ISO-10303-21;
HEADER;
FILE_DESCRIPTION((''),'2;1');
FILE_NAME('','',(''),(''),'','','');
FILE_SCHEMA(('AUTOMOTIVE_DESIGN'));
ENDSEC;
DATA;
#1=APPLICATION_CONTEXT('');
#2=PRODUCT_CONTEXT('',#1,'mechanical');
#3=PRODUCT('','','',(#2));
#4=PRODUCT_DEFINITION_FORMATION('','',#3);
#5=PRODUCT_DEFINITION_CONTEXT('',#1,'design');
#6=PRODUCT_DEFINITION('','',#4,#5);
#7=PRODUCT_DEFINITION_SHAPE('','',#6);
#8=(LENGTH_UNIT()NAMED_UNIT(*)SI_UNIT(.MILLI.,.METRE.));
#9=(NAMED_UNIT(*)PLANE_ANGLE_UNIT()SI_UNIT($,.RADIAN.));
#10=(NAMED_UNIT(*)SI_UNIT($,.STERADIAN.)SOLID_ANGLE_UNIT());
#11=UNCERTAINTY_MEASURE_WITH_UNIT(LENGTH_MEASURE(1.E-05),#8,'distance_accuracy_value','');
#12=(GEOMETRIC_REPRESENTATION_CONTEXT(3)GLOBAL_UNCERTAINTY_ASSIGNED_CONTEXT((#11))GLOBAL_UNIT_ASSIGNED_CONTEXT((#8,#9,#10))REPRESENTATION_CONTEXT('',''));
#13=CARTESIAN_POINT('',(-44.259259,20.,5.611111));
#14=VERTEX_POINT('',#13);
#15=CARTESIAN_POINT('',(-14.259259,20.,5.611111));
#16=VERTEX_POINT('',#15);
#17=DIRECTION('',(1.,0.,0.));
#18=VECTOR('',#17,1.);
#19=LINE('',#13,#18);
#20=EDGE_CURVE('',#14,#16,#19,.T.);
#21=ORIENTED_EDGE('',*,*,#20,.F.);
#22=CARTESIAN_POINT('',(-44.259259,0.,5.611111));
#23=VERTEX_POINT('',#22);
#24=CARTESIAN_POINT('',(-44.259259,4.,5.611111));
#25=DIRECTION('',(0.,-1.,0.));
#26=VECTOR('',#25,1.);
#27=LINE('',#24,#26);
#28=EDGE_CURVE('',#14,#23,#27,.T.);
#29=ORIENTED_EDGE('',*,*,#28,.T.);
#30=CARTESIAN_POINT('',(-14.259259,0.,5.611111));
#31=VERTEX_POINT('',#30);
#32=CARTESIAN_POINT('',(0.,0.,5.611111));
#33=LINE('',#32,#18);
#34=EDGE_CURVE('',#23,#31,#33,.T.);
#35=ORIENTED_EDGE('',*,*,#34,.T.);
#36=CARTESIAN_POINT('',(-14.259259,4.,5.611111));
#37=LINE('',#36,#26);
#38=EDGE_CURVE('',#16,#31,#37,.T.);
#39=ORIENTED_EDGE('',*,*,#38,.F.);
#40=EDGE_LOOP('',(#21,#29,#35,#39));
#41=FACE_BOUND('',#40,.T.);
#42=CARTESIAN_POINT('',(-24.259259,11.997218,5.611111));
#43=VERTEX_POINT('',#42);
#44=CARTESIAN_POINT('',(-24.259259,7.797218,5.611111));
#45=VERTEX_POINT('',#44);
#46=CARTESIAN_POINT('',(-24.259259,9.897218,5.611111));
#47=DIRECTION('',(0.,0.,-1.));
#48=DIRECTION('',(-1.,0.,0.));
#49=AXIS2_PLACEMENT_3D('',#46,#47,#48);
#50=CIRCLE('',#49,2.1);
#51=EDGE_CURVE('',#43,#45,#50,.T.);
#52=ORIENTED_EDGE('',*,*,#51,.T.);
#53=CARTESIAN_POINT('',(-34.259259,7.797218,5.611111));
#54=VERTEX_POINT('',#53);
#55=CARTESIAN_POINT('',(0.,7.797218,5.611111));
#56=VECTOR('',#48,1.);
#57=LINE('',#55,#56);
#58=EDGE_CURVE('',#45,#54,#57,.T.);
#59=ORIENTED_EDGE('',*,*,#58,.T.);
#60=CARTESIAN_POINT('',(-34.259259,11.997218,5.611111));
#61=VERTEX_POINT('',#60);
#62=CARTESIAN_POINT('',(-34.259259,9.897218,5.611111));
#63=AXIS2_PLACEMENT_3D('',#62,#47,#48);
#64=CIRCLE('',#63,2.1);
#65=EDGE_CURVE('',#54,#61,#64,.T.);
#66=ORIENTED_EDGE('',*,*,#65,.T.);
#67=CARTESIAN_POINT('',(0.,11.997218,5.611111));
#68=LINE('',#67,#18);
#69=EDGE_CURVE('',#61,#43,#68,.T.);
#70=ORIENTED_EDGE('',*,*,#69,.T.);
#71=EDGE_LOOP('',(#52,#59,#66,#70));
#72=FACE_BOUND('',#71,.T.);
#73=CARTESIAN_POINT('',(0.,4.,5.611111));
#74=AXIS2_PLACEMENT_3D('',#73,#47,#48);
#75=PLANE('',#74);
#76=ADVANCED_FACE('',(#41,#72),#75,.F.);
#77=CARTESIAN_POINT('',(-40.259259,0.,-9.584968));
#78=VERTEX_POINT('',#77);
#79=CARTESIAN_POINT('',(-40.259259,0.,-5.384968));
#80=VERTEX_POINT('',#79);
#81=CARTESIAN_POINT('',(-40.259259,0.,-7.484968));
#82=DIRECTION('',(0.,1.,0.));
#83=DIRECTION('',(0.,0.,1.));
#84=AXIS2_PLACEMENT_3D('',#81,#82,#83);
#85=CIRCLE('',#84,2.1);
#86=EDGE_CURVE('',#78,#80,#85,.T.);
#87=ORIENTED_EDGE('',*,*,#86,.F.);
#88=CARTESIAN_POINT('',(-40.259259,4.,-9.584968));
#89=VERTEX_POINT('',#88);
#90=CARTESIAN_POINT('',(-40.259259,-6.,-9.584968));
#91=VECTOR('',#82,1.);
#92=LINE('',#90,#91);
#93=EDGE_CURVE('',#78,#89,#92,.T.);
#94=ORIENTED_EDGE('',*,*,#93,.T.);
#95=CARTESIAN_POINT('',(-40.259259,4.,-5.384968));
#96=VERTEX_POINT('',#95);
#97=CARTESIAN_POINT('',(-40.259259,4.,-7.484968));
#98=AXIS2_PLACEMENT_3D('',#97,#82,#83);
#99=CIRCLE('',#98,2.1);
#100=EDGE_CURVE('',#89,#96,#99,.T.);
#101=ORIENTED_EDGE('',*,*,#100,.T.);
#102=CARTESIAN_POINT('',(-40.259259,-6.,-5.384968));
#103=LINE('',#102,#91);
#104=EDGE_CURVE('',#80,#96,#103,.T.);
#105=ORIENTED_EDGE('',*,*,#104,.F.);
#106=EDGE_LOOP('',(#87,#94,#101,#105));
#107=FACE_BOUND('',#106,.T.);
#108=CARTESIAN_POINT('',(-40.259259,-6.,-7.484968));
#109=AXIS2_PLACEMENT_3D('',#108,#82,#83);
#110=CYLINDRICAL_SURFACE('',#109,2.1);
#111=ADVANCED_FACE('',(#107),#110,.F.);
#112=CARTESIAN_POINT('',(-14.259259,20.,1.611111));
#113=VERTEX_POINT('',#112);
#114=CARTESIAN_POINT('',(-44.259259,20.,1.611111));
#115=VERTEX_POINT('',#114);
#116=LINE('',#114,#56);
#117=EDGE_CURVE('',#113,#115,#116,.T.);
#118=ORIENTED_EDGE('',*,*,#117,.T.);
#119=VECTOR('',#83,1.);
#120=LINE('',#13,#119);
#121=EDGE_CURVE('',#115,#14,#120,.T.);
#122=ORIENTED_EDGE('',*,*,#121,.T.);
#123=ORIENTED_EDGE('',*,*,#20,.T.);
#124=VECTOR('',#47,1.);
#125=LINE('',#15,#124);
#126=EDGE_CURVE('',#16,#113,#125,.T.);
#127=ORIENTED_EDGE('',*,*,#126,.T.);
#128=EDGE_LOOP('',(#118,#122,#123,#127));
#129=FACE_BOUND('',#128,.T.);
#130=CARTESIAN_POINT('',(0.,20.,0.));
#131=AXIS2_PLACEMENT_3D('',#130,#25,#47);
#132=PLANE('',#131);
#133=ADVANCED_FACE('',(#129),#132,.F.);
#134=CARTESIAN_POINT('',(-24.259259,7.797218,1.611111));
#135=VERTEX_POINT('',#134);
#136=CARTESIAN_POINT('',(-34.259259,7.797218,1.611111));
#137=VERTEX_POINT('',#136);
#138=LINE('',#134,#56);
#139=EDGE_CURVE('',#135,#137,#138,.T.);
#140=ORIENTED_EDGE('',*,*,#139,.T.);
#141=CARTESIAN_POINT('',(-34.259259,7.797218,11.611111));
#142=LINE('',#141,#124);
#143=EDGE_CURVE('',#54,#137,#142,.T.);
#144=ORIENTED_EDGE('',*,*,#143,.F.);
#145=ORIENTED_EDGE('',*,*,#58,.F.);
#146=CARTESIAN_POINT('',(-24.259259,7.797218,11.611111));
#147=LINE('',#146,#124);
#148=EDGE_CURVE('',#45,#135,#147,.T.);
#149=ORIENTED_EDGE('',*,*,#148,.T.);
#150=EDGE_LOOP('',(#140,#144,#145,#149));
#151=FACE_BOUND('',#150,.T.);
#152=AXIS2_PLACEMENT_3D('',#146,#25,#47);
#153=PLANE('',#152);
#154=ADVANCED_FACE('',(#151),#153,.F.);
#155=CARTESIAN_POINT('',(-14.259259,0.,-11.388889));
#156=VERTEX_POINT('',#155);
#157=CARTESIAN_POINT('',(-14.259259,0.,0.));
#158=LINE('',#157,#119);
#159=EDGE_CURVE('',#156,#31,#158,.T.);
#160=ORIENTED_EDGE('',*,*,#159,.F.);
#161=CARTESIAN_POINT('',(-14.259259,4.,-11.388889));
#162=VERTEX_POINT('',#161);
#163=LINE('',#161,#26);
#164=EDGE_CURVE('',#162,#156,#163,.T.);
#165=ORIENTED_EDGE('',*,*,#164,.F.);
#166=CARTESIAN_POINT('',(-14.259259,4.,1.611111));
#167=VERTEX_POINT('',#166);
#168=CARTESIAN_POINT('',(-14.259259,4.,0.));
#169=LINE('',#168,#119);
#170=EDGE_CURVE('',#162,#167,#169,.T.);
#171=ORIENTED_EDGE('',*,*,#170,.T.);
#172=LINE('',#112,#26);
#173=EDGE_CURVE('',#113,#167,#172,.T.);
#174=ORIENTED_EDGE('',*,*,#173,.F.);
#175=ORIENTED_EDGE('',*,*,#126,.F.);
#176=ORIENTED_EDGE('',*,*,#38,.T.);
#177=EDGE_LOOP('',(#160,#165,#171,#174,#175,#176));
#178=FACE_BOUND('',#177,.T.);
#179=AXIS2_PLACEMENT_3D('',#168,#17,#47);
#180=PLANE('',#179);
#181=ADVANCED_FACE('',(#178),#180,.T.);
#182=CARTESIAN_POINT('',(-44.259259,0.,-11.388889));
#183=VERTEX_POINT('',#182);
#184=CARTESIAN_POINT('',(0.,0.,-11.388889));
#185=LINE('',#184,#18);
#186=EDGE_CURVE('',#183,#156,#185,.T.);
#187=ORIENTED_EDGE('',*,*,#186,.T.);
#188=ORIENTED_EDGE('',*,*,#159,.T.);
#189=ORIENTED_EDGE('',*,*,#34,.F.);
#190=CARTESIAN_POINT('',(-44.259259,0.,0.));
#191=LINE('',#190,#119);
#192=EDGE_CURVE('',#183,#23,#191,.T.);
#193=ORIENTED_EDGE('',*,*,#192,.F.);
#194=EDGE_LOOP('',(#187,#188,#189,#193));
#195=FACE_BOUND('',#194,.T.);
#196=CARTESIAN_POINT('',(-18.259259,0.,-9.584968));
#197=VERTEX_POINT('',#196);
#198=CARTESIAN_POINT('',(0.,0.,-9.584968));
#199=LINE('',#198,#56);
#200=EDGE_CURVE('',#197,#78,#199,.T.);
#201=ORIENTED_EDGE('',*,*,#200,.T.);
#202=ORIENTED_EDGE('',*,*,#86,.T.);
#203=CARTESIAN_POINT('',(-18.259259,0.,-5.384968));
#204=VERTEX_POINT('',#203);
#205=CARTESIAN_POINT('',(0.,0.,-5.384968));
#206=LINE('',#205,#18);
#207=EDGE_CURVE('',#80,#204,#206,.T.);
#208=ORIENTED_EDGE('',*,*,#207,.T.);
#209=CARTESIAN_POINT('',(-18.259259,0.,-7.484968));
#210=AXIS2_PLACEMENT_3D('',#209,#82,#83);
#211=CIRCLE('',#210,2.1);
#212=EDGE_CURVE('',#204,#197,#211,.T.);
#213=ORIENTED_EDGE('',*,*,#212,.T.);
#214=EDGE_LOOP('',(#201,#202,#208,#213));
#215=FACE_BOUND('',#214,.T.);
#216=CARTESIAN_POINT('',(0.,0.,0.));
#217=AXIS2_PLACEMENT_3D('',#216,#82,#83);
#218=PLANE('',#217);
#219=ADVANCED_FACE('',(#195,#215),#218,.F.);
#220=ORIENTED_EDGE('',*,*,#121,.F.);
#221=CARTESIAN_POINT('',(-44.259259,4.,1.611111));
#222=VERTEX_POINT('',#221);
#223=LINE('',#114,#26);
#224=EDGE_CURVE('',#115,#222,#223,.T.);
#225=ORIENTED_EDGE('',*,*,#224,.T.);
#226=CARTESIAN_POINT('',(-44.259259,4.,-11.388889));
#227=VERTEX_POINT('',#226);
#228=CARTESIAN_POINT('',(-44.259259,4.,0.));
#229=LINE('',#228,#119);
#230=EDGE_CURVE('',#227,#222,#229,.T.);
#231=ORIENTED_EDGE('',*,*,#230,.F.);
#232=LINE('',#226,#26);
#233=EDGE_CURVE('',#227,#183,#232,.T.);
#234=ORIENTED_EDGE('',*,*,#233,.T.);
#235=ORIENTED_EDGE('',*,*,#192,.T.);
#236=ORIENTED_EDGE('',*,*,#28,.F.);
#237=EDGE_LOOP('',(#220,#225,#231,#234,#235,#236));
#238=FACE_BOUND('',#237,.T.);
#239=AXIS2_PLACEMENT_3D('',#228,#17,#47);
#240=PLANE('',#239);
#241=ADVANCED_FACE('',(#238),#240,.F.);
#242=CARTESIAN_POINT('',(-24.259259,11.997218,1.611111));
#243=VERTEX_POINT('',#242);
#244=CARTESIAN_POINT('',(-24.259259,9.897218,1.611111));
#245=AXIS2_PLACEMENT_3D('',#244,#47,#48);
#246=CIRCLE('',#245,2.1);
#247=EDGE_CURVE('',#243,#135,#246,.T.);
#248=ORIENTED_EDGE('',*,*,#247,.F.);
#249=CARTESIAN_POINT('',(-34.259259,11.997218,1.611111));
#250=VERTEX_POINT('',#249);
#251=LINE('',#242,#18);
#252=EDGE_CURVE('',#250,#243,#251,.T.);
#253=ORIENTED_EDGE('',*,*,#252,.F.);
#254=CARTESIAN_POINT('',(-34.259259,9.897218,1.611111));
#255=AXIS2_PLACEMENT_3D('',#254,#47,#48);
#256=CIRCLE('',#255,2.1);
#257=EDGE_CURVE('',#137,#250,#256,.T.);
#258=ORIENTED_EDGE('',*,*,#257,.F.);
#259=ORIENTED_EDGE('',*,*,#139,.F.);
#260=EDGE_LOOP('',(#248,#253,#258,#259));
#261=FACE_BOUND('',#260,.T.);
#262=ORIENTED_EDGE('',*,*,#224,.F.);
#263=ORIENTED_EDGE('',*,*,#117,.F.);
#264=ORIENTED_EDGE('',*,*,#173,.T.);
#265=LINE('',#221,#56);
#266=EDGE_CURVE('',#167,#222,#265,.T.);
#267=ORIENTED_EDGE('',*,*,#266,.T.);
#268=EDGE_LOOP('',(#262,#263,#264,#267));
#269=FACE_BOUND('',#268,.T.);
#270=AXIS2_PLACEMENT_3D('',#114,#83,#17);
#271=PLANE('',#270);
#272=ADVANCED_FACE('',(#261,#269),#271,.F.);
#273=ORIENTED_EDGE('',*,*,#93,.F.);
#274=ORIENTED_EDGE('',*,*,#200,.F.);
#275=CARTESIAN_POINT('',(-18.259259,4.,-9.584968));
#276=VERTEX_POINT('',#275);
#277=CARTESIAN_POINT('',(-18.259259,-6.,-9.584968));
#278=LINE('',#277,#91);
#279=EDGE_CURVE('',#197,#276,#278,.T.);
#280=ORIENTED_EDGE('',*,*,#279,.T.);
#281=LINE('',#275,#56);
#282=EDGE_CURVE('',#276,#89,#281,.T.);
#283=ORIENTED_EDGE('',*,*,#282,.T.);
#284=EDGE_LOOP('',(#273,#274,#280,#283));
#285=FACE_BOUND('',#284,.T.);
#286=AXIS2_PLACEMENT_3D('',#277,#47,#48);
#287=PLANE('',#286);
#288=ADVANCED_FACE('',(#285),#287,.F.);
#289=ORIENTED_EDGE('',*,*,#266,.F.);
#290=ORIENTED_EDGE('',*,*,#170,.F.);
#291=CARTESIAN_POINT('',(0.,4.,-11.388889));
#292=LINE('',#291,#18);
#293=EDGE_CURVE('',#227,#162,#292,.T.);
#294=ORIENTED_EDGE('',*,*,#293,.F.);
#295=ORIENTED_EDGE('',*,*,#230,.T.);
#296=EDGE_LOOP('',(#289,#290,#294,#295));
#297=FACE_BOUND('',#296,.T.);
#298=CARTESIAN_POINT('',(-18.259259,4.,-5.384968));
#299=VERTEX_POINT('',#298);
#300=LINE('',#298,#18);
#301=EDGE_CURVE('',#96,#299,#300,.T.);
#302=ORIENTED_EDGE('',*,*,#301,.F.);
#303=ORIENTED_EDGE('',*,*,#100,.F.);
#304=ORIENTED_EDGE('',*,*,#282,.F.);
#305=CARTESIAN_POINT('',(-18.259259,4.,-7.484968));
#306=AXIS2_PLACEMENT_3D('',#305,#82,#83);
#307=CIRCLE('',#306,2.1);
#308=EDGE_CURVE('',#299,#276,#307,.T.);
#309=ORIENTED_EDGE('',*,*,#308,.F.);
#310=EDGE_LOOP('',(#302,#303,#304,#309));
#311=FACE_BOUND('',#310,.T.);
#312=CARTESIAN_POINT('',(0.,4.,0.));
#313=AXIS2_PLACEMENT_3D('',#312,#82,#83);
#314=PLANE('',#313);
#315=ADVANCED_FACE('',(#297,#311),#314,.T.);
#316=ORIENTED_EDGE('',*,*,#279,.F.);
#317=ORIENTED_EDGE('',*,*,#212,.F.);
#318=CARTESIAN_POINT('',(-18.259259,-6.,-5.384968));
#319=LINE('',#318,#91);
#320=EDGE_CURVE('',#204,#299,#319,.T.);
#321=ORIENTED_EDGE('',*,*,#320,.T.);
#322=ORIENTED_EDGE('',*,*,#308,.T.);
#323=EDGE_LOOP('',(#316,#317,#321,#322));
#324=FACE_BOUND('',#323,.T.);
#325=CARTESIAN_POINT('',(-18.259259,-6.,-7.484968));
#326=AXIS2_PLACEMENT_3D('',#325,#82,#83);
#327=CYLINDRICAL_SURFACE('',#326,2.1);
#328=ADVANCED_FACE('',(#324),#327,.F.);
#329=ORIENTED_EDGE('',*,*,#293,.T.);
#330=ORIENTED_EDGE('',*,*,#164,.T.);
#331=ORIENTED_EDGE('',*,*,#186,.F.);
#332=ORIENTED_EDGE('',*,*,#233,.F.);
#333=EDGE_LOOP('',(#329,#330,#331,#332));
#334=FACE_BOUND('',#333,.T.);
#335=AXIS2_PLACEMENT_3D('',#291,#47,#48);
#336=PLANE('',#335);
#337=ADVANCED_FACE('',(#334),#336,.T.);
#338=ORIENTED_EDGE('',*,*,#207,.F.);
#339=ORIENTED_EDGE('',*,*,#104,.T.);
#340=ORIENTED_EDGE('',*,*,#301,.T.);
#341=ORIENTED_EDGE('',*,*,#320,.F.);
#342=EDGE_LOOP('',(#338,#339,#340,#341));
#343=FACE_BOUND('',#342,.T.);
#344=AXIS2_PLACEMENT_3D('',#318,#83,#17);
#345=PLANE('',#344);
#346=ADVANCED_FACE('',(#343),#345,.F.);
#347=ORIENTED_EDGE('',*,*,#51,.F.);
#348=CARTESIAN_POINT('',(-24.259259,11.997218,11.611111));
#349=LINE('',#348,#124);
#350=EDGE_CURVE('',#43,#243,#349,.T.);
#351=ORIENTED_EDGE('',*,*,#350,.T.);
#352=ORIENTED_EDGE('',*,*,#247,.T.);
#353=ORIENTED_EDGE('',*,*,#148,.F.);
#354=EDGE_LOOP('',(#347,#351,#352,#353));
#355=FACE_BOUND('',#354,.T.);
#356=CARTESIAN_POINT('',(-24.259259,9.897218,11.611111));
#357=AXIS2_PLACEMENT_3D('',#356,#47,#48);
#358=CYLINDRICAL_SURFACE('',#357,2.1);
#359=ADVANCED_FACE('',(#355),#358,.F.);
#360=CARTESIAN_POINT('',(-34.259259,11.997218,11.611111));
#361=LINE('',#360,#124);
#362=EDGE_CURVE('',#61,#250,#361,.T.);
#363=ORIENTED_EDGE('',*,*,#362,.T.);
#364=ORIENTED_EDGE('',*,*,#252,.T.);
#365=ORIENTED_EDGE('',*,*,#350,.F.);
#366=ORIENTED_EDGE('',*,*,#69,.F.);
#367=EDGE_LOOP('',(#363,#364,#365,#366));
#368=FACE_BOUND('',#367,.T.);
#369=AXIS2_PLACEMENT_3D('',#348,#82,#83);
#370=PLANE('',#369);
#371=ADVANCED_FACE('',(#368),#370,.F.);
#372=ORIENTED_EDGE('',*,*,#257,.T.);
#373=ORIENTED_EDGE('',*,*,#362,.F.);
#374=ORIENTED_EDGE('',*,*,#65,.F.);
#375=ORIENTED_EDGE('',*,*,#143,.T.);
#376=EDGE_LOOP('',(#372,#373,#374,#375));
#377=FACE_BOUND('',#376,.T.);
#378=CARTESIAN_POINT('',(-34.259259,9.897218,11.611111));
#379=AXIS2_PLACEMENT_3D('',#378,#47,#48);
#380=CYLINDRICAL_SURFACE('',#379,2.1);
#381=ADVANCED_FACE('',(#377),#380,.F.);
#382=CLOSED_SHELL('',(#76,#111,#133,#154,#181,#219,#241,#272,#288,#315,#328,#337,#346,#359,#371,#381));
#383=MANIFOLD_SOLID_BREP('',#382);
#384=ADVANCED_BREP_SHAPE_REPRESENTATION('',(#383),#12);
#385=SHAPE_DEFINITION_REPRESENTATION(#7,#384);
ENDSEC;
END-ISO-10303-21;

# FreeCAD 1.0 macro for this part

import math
import FreeCAD as App
import Part
import Sketcher

V = App.Vector
Q = App.Units.Quantity


def add_polygon(sketch, points):
    """Adds a closed chain of lines whose ends are joined by coincident constraints."""
    first, n = sketch.GeometryCount, len(points)
    for a, b in zip(points, points[1:] + points[:1]):
        sketch.addGeometry(Part.LineSegment(App.Vector(*a, 0), App.Vector(*b, 0)), False)
    for i in range(n):
        sketch.addConstraint(Sketcher.Constraint("Coincident", first + i, 2, first + (i + 1) % n, 1))

doc = App.newDocument("Part")
body = doc.addObject("PartDesign::Body", "Body")

sketch1 = body.newObject("Sketcher::SketchObject", "Sketch")
sketch1.AttachmentSupport = (doc.getObject("XZ_Plane"), [""])
sketch1.MapMode = "FlatFace"
add_polygon(sketch1, [(-44, -11), (-44, 6), (-14, 6), (-14, -11)])
sketch1.addConstraint([
    Sketcher.Constraint("Vertical", 0),
    Sketcher.Constraint("Horizontal", 1),
    Sketcher.Constraint("Vertical", 2),
    Sketcher.Constraint("Horizontal", 3),
    Sketcher.Constraint("DistanceX", 1, 1, 1, 2, Q("30 mm")),
    Sketcher.Constraint("DistanceY", 0, 1, 0, 2, Q("17 mm")),
    Sketcher.Constraint("DistanceX", 0, 2, -1, 1, Q("44.259259 mm")),
    Sketcher.Constraint("DistanceY", -1, 1, 0, 2, Q("5.611111 mm")),
])
pad1 = body.newObject("PartDesign::Pad", "Pad")
pad1.Profile = sketch1
pad1.Length = 4
pad1.Reversed = True

sketch2 = body.newObject("Sketcher::SketchObject", "Sketch001")
sketch2.AttachmentSupport = (doc.getObject("XZ_Plane"), [""])
sketch2.MapMode = "FlatFace"
sketch2.AttachmentOffset = App.Placement(V(0, 0, -4), App.Rotation())
add_polygon(sketch2, [(-44.3, 1.6), (-44.3, 5.6), (-14.3, 5.6), (-14.3, 1.6)])
sketch2.addConstraint([
    Sketcher.Constraint("Vertical", 0),
    Sketcher.Constraint("Horizontal", 1),
    Sketcher.Constraint("Vertical", 2),
    Sketcher.Constraint("Horizontal", 3),
    Sketcher.Constraint("DistanceX", 1, 1, 1, 2, Q("30 mm")),
    Sketcher.Constraint("DistanceY", 0, 1, 0, 2, Q("4 mm")),
    Sketcher.Constraint("DistanceX", 0, 2, -1, 1, Q("44.259259 mm")),
    Sketcher.Constraint("DistanceY", -1, 1, 0, 2, Q("5.611111 mm")),
])
pad2 = body.newObject("PartDesign::Pad", "Pad001")
pad2.Profile = sketch2
pad2.Length = 16
pad2.Reversed = True

sketch3 = body.newObject("Sketcher::SketchObject", "Sketch002")
sketch3.AttachmentSupport = (doc.getObject("XZ_Plane"), [""])
sketch3.MapMode = "FlatFace"
sketch3.AttachmentOffset = App.Placement(V(0, 0, -4), App.Rotation())
sketch3.addGeometry([
    Part.LineSegment(V(-40.3, -5.4, 0), V(-18.3, -5.4, 0)),
    Part.ArcOfCircle(Part.Circle(V(-18.3, -7.5, 0), V(0, 0, 1), 2.1), math.radians(-90), math.radians(90)),
    Part.LineSegment(V(-18.3, -9.6, 0), V(-40.3, -9.6, 0)),
    Part.ArcOfCircle(Part.Circle(V(-40.3, -7.5, 0), V(0, 0, 1), 2.1), math.radians(90), math.radians(270)),
], False)
sketch3.addConstraint([
    Sketcher.Constraint("Tangent", 0, 2, 1, 2),
    Sketcher.Constraint("Tangent", 1, 1, 2, 1),
    Sketcher.Constraint("Tangent", 2, 2, 3, 2),
    Sketcher.Constraint("Tangent", 3, 1, 0, 1),
    Sketcher.Constraint("Horizontal", 0),
    Sketcher.Constraint("Horizontal", 2),
    Sketcher.Constraint("Radius", 1, Q("2.1 mm")),
    Sketcher.Constraint("DistanceX", 0, 1, 0, 2, Q("22 mm")),
    Sketcher.Constraint("DistanceX", 1, 3, -1, 1, Q("18.259259 mm")),
    Sketcher.Constraint("DistanceY", 1, 3, -1, 1, Q("7.484968 mm")),
])
pocket1 = body.newObject("PartDesign::Pocket", "Pocket")
pocket1.Profile = sketch3
pocket1.Length = 10
pocket1.Reversed = True

sketch4 = body.newObject("Sketcher::SketchObject", "Sketch003")
sketch4.AttachmentSupport = (doc.getObject("XY_Plane"), [""])
sketch4.MapMode = "FlatFace"
sketch4.AttachmentOffset = App.Placement(V(0, 0, 1.611111), App.Rotation())
sketch4.addGeometry([
    Part.LineSegment(V(-34.3, 12, 0), V(-24.3, 12, 0)),
    Part.ArcOfCircle(Part.Circle(V(-24.3, 9.9, 0), V(0, 0, 1), 2.1), math.radians(-90), math.radians(90)),
    Part.LineSegment(V(-24.3, 7.8, 0), V(-34.3, 7.8, 0)),
    Part.ArcOfCircle(Part.Circle(V(-34.3, 9.9, 0), V(0, 0, 1), 2.1), math.radians(90), math.radians(270)),
], False)
sketch4.addConstraint([
    Sketcher.Constraint("Tangent", 0, 2, 1, 2),
    Sketcher.Constraint("Tangent", 1, 1, 2, 1),
    Sketcher.Constraint("Tangent", 2, 2, 3, 2),
    Sketcher.Constraint("Tangent", 3, 1, 0, 1),
    Sketcher.Constraint("Horizontal", 0),
    Sketcher.Constraint("Horizontal", 2),
    Sketcher.Constraint("Radius", 1, Q("2.1 mm")),
    Sketcher.Constraint("DistanceX", 0, 1, 0, 2, Q("10 mm")),
    Sketcher.Constraint("DistanceX", 1, 3, -1, 1, Q("24.259259 mm")),
    Sketcher.Constraint("DistanceY", -1, 1, 1, 3, Q("9.897218 mm")),
])
pocket2 = body.newObject("PartDesign::Pocket", "Pocket001")
pocket2.Profile = sketch4
pocket2.Length = 10
pocket2.Reversed = True

doc.recompute()
